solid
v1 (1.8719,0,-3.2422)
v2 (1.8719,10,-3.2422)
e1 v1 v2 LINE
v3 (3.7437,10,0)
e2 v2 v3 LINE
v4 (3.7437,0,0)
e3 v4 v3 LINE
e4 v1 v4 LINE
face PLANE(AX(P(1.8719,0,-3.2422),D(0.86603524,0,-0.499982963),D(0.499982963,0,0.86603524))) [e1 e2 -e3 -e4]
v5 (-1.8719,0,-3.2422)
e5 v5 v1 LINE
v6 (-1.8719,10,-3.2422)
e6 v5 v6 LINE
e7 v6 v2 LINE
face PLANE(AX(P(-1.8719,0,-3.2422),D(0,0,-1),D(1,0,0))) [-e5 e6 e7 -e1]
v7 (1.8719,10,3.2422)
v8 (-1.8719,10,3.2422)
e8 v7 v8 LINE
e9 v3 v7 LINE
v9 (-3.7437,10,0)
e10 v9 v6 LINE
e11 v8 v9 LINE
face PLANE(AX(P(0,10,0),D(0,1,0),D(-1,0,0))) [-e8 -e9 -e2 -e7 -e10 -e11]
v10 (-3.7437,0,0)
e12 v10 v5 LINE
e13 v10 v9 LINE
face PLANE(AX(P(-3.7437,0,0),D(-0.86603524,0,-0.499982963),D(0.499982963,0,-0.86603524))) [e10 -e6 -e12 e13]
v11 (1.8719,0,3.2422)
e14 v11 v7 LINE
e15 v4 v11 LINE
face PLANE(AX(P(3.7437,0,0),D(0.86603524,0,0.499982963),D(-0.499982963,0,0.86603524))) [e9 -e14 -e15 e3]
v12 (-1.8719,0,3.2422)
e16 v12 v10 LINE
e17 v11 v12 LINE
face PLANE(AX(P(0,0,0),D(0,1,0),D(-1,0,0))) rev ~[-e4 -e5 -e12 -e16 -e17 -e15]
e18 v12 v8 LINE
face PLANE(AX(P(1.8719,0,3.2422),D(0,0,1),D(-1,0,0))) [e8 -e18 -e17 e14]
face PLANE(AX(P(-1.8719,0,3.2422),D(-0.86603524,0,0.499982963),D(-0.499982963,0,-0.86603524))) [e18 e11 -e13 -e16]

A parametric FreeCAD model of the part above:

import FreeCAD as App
import Part
import Sketcher
Q = App.Units.Quantity

doc = App.newDocument("Part")
body = doc.addObject("PartDesign::Body", "Body")

# Sketch on XZ plane
sketch1 = body.newObject("Sketcher::SketchObject", "Sketch")
sketch1.AttachmentSupport = (doc.getObject("XZ_Plane"), [""])
sketch1.MapMode = "FlatFace"
sketch1.addGeometry(Part.LineSegment(App.Vector(1.9, 3.2, 0), App.Vector(3.7, 0, 0)), False)
sketch1.addGeometry(Part.LineSegment(App.Vector(3.7, 0, 0), App.Vector(1.9, -3.2, 0)), False)
sketch1.addGeometry(Part.LineSegment(App.Vector(1.9, -3.2, 0), App.Vector(-1.9, -3.2, 0)), False)
sketch1.addGeometry(Part.LineSegment(App.Vector(-1.9, -3.2, 0), App.Vector(-3.7, 0, 0)), False)
sketch1.addGeometry(Part.LineSegment(App.Vector(-3.7, 0, 0), App.Vector(-1.9, 3.2, 0)), False)
sketch1.addGeometry(Part.LineSegment(App.Vector(-1.9, 3.2, 0), App.Vector(1.9, 3.2, 0)), False)
sketch1.addConstraint(Sketcher.Constraint("Coincident", 0, 2, 1, 1))
sketch1.addConstraint(Sketcher.Constraint("Coincident", 1, 2, 2, 1))
sketch1.addConstraint(Sketcher.Constraint("Coincident", 2, 2, 3, 1))
sketch1.addConstraint(Sketcher.Constraint("Coincident", 3, 2, 4, 1))
sketch1.addConstraint(Sketcher.Constraint("Coincident", 4, 2, 5, 1))
sketch1.addConstraint(Sketcher.Constraint("Coincident", 5, 2, 0, 1))
sketch1.addConstraint(Sketcher.Constraint("Horizontal", 2))
sketch1.addConstraint(Sketcher.Constraint("Horizontal", 5))
sketch1.addConstraint(Sketcher.Constraint("Symmetric", 0, 2, 3, 2, -1, 1))
sketch1.addConstraint(Sketcher.Constraint("Symmetric", 1, 2, 4, 2, -1, 1))
sketch1.addConstraint(Sketcher.Constraint("PointOnObject", 0, 2, -1))
sketch1.addConstraint(Sketcher.Constraint("Parallel", 0, 3))
sketch1.addConstraint(Sketcher.Constraint("Vertical", 2, 2, 4, 2))
sketch1.addConstraint(Sketcher.Constraint("Angle", 0, Q("-60.0011 deg")))
sketch1.addConstraint(Sketcher.Constraint("DistanceX", 2, 2, 2, 1, Q("3.7438 mm")))
sketch1.addConstraint(Sketcher.Constraint("Distance", 0, Q("3.7437 mm")))
pad1 = body.newObject("PartDesign::Pad", "Pad")
pad1.Profile = sketch1
pad1.Length = 10
pad1.Reversed = True

doc.recompute()
